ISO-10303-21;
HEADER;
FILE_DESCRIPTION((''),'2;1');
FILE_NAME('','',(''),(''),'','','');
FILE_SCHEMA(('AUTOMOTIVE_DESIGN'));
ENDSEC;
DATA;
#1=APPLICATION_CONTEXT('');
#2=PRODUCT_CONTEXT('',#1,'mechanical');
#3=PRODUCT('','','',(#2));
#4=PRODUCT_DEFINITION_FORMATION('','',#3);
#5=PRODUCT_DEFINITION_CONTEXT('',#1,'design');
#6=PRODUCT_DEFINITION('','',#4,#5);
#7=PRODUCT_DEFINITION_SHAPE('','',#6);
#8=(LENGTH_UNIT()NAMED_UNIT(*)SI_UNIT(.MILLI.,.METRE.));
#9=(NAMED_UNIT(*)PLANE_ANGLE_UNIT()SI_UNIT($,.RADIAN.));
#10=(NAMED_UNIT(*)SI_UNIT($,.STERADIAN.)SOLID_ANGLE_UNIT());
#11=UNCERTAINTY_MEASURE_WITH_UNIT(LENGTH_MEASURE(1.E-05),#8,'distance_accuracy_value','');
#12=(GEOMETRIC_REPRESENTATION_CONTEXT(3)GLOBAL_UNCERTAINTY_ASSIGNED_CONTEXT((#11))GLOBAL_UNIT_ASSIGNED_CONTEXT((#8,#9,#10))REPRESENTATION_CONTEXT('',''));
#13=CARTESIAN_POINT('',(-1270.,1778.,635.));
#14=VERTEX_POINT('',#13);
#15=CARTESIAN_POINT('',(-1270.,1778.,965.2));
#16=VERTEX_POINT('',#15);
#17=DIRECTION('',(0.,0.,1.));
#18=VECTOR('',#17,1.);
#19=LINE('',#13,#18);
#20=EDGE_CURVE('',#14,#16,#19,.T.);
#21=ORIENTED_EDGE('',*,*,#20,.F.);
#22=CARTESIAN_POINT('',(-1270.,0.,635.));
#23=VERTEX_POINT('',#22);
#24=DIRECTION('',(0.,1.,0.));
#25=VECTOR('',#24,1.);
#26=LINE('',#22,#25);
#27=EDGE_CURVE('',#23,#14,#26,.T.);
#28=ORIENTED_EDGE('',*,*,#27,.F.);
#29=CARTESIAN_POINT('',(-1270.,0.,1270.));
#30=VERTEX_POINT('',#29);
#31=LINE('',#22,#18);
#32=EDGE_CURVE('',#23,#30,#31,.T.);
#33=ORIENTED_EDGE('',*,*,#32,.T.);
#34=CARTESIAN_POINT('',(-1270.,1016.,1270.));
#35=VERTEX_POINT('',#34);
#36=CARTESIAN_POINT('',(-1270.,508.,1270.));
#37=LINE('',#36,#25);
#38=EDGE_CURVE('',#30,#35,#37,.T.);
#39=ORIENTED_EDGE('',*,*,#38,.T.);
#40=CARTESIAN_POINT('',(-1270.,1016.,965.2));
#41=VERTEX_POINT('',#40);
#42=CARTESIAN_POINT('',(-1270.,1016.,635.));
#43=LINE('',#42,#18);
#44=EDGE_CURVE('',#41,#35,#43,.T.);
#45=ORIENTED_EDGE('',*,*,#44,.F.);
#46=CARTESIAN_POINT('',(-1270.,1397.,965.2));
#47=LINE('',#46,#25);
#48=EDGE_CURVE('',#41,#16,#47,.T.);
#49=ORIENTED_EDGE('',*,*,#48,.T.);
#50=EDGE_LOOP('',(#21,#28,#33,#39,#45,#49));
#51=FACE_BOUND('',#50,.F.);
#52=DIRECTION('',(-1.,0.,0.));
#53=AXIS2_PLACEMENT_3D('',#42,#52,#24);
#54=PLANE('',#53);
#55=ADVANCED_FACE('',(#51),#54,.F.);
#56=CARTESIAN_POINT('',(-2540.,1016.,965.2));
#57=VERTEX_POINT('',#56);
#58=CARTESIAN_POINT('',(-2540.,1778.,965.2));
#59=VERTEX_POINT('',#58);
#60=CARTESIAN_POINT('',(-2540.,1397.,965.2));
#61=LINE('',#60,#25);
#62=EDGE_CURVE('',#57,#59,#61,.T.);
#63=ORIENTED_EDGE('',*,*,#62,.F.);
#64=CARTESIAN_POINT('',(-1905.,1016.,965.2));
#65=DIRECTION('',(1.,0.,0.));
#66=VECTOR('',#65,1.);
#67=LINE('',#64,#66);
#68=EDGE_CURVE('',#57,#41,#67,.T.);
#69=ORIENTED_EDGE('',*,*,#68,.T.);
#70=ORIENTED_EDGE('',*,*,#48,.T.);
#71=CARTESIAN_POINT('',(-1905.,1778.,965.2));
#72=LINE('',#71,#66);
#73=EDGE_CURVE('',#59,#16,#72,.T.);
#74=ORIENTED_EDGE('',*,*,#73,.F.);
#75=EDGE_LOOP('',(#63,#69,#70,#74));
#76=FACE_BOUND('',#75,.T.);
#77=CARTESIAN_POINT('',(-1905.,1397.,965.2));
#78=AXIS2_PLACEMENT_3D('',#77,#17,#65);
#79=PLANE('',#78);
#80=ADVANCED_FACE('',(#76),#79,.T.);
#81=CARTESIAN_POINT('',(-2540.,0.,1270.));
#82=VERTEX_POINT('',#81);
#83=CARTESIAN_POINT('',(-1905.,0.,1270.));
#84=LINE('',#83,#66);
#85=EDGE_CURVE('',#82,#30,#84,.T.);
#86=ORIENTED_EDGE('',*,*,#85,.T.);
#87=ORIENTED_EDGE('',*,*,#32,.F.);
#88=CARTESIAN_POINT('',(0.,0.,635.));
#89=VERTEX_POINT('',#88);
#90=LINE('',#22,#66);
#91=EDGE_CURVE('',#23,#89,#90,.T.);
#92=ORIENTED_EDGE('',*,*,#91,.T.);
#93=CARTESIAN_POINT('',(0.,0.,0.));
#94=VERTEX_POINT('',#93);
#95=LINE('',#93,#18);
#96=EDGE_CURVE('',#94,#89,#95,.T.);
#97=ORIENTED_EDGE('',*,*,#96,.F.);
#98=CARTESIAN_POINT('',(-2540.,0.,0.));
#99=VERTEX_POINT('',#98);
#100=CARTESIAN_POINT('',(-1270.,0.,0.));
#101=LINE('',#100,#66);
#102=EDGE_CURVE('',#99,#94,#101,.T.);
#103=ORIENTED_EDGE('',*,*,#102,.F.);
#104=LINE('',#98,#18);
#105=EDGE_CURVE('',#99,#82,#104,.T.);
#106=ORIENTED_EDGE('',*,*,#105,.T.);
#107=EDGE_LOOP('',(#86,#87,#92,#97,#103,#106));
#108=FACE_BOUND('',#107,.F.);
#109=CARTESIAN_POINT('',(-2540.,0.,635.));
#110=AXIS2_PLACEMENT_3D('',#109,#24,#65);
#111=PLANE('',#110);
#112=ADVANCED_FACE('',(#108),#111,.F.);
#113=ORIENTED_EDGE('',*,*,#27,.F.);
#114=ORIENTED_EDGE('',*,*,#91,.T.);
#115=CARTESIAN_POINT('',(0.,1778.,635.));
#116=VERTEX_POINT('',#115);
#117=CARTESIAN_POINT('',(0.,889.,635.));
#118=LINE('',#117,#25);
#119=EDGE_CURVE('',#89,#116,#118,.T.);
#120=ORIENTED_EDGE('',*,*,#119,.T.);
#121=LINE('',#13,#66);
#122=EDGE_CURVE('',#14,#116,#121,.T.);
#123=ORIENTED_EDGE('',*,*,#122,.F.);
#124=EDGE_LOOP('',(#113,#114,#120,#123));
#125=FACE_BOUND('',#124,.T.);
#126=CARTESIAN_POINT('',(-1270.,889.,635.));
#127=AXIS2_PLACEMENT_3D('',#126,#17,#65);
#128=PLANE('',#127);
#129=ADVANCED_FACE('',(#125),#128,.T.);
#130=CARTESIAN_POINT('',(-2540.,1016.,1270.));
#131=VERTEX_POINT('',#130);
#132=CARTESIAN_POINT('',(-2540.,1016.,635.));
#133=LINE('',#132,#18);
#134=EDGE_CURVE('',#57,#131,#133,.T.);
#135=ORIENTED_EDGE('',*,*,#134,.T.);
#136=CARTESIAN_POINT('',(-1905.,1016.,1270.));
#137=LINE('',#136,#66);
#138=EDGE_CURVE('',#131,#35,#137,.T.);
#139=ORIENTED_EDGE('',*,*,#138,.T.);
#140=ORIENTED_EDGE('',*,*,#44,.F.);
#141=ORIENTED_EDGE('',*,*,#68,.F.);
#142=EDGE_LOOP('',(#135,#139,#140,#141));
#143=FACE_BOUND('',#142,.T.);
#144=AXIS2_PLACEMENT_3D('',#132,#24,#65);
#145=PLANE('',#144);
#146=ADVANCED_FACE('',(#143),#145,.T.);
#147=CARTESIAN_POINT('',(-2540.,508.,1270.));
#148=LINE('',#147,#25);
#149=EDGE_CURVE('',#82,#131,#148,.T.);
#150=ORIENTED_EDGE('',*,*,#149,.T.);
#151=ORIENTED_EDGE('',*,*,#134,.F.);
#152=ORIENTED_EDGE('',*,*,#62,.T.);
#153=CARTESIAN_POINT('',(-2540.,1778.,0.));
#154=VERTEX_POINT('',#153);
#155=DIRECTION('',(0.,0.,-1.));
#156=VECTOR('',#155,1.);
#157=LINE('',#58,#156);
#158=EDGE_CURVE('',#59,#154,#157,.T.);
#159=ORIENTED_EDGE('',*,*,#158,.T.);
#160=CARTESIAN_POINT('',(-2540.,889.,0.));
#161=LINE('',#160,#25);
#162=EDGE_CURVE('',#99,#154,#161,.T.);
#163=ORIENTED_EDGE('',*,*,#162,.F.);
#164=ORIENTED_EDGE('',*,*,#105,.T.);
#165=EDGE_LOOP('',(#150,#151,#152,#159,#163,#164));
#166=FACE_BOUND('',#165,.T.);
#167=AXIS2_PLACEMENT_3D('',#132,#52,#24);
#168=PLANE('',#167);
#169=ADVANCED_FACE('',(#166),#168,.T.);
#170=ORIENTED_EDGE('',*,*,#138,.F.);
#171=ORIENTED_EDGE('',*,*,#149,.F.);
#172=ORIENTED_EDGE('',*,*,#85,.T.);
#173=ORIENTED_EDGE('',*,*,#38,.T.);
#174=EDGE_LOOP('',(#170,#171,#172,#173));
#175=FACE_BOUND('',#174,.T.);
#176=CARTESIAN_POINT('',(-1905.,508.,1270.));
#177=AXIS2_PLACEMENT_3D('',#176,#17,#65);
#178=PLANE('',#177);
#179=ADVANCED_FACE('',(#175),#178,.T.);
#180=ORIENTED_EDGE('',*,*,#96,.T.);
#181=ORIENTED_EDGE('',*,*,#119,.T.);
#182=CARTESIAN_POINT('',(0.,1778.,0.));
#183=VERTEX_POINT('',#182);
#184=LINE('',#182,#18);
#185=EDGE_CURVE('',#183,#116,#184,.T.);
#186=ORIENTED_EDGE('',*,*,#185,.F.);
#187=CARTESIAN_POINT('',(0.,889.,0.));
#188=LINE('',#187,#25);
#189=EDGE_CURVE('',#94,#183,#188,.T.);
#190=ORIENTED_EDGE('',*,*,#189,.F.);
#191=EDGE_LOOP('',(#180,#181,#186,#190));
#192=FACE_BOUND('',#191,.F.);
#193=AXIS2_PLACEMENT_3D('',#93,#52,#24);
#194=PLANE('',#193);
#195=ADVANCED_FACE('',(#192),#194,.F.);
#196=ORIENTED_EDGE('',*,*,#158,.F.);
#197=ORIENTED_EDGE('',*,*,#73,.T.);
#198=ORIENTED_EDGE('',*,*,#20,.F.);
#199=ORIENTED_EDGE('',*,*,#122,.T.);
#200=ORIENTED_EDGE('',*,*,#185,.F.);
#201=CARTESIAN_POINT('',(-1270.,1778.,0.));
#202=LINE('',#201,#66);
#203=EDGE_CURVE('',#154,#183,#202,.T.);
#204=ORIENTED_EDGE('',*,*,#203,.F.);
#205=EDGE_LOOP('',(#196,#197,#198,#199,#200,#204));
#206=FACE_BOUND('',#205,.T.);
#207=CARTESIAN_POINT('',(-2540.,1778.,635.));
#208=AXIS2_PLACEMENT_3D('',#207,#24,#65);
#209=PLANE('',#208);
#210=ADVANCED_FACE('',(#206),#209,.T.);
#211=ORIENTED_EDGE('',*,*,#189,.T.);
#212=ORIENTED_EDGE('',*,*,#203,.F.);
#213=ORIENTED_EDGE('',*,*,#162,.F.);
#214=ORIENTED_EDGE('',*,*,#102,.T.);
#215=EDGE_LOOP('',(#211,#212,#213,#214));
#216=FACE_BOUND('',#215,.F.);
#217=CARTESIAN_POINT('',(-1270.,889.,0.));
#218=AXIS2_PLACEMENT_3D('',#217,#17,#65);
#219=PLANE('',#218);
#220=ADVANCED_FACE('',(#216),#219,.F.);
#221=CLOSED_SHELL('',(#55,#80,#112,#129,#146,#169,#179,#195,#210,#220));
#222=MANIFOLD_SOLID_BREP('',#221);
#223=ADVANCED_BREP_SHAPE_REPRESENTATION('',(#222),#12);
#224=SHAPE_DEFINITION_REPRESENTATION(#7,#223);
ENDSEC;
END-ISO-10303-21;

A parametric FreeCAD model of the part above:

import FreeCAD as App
import Part
import Sketcher
from FreeCAD import Vector
Q = App.Units.Quantity

doc = App.newDocument("Part")
params = doc.addObject("Spreadsheet::Sheet", "Params")
for row, (alias, value) in enumerate([
    ("sketch1_width", "100 in"),
    ("sketch1_height", "70 in"),
    ("pad1_length", "25 in"),
    ("sketch2_width", "50 in"),
    ("sketch2_height", "40 in"),
    ("pad2_length", "25 in"),
    ("sketch3_width", "50 in"),
    ("sketch3_height", "30 in"),
    ("pad3_length", "13 in"),
], start=1):
    params.set(f"A{row}", alias)
    params.set(f"B{row}", "=" + value)
    params.setAlias(f"B{row}", alias)

body = doc.addObject("PartDesign::Body", "Body")

# Sketch on XY plane
sketch1 = body.newObject("Sketcher::SketchObject", "Sketch")
sketch1.AttachmentSupport = (doc.getObject("XY_Plane"), [""])
sketch1.MapMode = "FlatFace"
sketch1.addGeometry([
    Part.LineSegment(Vector(-2540, 1778, 0), Vector(-2540, 0, 0)),
    Part.LineSegment(Vector(-2540, 0, 0), Vector(0, 0, 0)),
    Part.LineSegment(Vector(0, 0, 0), Vector(0, 1778, 0)),
    Part.LineSegment(Vector(0, 1778, 0), Vector(-2540, 1778, 0)),
], False)
sketch1.addConstraint([
    Sketcher.Constraint("Coincident", 0, 2, 1, 1),
    Sketcher.Constraint("Coincident", 1, 2, 2, 1),
    Sketcher.Constraint("Coincident", 2, 2, 3, 1),
    Sketcher.Constraint("Coincident", 3, 2, 0, 1),
    Sketcher.Constraint("Vertical", 0),
    Sketcher.Constraint("Horizontal", 1),
    Sketcher.Constraint("Vertical", 2),
    Sketcher.Constraint("Horizontal", 3),
    Sketcher.Constraint("Coincident", 1, 2, -1, 1),
    Sketcher.Constraint("DistanceX", 1, 1, 1, 2, Q("100 in")),
    Sketcher.Constraint("DistanceY", 0, 2, 0, 1, Q("70 in")),
])
sketch1.setExpression("Constraints[9]", "Params.sketch1_width")
sketch1.setExpression("Constraints[10]", "Params.sketch1_height")
pad1 = body.newObject("PartDesign::Pad", "Pad")
pad1.Profile = sketch1
pad1.setExpression("Length", "Params.pad1_length")

# Sketch on XY plane
sketch2 = body.newObject("Sketcher::SketchObject", "Sketch001")
sketch2.AttachmentSupport = (doc.getObject("XY_Plane"), [""])
sketch2.MapMode = "FlatFace"
sketch2.AttachmentOffset = App.Placement(Vector(0, 0, 25 * 25.4), App.Rotation())
sketch2.addGeometry([
    Part.LineSegment(Vector(-2540, 1016, 0), Vector(-2540, 0, 0)),
    Part.LineSegment(Vector(-2540, 0, 0), Vector(-1270, 0, 0)),
    Part.LineSegment(Vector(-1270, 0, 0), Vector(-1270, 1016, 0)),
    Part.LineSegment(Vector(-1270, 1016, 0), Vector(-2540, 1016, 0)),
], False)
sketch2.addConstraint([
    Sketcher.Constraint("Coincident", 0, 2, 1, 1),
    Sketcher.Constraint("Coincident", 1, 2, 2, 1),
    Sketcher.Constraint("Coincident", 2, 2, 3, 1),
    Sketcher.Constraint("Coincident", 3, 2, 0, 1),
    Sketcher.Constraint("Vertical", 0),
    Sketcher.Constraint("Horizontal", 1),
    Sketcher.Constraint("Vertical", 2),
    Sketcher.Constraint("Horizontal", 3),
    Sketcher.Constraint("PointOnObject", 0, 2, -1),
    Sketcher.Constraint("DistanceX", 1, 1, 1, 2, Q("50 in")),
    Sketcher.Constraint("DistanceY", 0, 2, 0, 1, Q("40 in")),
    Sketcher.Constraint("DistanceX", 0, 2, -1, 1, Q("100 in")),
])
sketch2.setExpression("Constraints[9]", "Params.sketch2_width")
sketch2.setExpression("Constraints[10]", "Params.sketch2_height")
pad2 = body.newObject("PartDesign::Pad", "Pad001")
pad2.Profile = sketch2
pad2.setExpression("Length", "Params.pad2_length")

# Sketch on XY plane
sketch3 = body.newObject("Sketcher::SketchObject", "Sketch002")
sketch3.AttachmentSupport = (doc.getObject("XY_Plane"), [""])
sketch3.MapMode = "FlatFace"
sketch3.AttachmentOffset = App.Placement(Vector(0, 0, 25 * 25.4), App.Rotation())
sketch3.addGeometry([
    Part.LineSegment(Vector(-2540, 1778, 0), Vector(-2540, 1016, 0)),
    Part.LineSegment(Vector(-2540, 1016, 0), Vector(-1270, 1016, 0)),
    Part.LineSegment(Vector(-1270, 1016, 0), Vector(-1270, 1778, 0)),
    Part.LineSegment(Vector(-1270, 1778, 0), Vector(-2540, 1778, 0)),
], False)
sketch3.addConstraint([
    Sketcher.Constraint("Coincident", 0, 2, 1, 1),
    Sketcher.Constraint("Coincident", 1, 2, 2, 1),
    Sketcher.Constraint("Coincident", 2, 2, 3, 1),
    Sketcher.Constraint("Coincident", 3, 2, 0, 1),
    Sketcher.Constraint("Vertical", 0),
    Sketcher.Constraint("Horizontal", 1),
    Sketcher.Constraint("Vertical", 2),
    Sketcher.Constraint("Horizontal", 3),
    Sketcher.Constraint("DistanceX", 1, 1, 1, 2, Q("50 in")),
    Sketcher.Constraint("DistanceY", 0, 2, 0, 1, Q("30 in")),
    Sketcher.Constraint("DistanceX", 0, 2, -1, 1, Q("100 in")),
    Sketcher.Constraint("DistanceY", -1, 1, 0, 2, Q("40 in")),
])
sketch3.setExpression("Constraints[8]", "Params.sketch3_width")
sketch3.setExpression("Constraints[9]", "Params.sketch3_height")
pad3 = body.newObject("PartDesign::Pad", "Pad002")
pad3.Profile = sketch3
pad3.setExpression("Length", "Params.pad3_length")

doc.recompute()
